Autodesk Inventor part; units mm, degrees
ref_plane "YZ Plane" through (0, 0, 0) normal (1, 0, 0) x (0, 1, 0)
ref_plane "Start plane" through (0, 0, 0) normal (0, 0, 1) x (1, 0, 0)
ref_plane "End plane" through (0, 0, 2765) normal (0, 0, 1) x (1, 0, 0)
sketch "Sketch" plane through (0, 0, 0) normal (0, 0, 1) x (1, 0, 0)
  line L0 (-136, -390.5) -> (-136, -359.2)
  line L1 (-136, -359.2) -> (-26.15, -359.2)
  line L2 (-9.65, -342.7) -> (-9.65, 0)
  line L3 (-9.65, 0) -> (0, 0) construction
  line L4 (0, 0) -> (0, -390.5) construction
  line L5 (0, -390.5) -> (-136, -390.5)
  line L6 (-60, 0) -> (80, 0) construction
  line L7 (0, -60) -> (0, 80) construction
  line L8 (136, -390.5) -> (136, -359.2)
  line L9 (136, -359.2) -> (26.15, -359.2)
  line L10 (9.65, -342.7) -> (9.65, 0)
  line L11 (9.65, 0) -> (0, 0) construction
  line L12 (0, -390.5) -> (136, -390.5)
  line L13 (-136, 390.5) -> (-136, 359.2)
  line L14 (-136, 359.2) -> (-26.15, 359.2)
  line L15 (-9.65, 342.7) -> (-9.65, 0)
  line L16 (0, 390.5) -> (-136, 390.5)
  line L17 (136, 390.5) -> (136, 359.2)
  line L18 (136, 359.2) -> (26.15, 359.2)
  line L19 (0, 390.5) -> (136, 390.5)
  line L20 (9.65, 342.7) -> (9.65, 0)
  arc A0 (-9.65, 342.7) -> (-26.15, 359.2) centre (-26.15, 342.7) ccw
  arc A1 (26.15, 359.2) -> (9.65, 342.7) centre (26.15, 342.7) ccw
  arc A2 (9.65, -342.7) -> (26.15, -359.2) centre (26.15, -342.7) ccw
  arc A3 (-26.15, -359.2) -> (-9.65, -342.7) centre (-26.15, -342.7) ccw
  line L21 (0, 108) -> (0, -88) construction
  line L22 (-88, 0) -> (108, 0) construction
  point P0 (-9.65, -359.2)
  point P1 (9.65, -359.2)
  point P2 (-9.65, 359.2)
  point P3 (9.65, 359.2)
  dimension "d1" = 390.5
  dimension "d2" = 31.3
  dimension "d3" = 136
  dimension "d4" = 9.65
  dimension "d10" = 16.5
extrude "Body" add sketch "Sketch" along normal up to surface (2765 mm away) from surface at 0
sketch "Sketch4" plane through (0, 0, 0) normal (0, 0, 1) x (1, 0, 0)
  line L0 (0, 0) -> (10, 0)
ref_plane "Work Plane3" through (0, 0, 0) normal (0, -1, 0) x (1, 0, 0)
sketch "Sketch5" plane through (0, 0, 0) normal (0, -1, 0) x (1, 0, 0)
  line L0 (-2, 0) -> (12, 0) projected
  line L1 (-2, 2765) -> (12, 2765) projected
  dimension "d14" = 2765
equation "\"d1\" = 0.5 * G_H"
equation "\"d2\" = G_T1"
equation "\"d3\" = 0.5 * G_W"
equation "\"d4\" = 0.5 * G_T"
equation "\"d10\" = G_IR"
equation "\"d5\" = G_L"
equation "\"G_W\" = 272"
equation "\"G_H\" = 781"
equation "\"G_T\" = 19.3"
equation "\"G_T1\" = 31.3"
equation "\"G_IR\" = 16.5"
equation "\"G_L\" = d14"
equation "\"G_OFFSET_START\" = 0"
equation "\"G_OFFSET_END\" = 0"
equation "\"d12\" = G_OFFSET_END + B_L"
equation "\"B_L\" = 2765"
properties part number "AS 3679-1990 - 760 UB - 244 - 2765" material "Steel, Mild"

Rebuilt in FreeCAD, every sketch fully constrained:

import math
import FreeCAD as App
import Part
import Sketcher

V = App.Vector

doc = App.newDocument("Part")
body = doc.addObject("PartDesign::Body", "Body")

sketch1 = body.newObject("Sketcher::SketchObject", "Sketch")
sketch1.AttachmentSupport = (doc.getObject("XY_Plane"), [""])
sketch1.MapMode = "FlatFace"
sketch1.addGeometry([
    Part.LineSegment(V(-136, -359, 0), V(-136, -390, 0)),
    Part.LineSegment(V(-136, -390, 0), V(136, -390, 0)),
    Part.LineSegment(V(136, -390, 0), V(136, -359, 0)),
    Part.LineSegment(V(136, -359, 0), V(26, -359, 0)),
    Part.ArcOfCircle(Part.Circle(V(26, -343, 0), V(0, 0, 1), 16), math.radians(180), math.radians(270)),
    Part.LineSegment(V(10, -343, 0), V(10, 343, 0)),
    Part.ArcOfCircle(Part.Circle(V(26, 343, 0), V(0, 0, 1), 16), math.radians(90), math.radians(180)),
    Part.LineSegment(V(26, 359, 0), V(136, 359, 0)),
    Part.LineSegment(V(136, 359, 0), V(136, 390, 0)),
    Part.LineSegment(V(136, 390, 0), V(-136, 390, 0)),
    Part.LineSegment(V(-136, 390, 0), V(-136, 359, 0)),
    Part.LineSegment(V(-136, 359, 0), V(-26, 359, 0)),
    Part.ArcOfCircle(Part.Circle(V(-26, 343, 0), V(0, 0, 1), 16), math.radians(0), math.radians(90)),
    Part.LineSegment(V(-10, 343, 0), V(-10, -343, 0)),
    Part.ArcOfCircle(Part.Circle(V(-26, -343, 0), V(0, 0, 1), 16), math.radians(-90), math.radians(0)),
    Part.LineSegment(V(-26, -359, 0), V(-136, -359, 0)),
], False)
sketch1.addConstraint([
    Sketcher.Constraint("Coincident", 0, 2, 1, 1),
    Sketcher.Constraint("Coincident", 1, 2, 2, 1),
    Sketcher.Constraint("Coincident", 2, 2, 3, 1),
    Sketcher.Constraint("Tangent", 3, 2, 4, 2),
    Sketcher.Constraint("Tangent", 4, 1, 5, 1),
    Sketcher.Constraint("Tangent", 5, 2, 6, 2),
    Sketcher.Constraint("Tangent", 6, 1, 7, 1),
    Sketcher.Constraint("Coincident", 7, 2, 8, 1),
    Sketcher.Constraint("Coincident", 8, 2, 9, 1),
    Sketcher.Constraint("Coincident", 9, 2, 10, 1),
    Sketcher.Constraint("Coincident", 10, 2, 11, 1),
    Sketcher.Constraint("Tangent", 11, 2, 12, 2),
    Sketcher.Constraint("Tangent", 12, 1, 13, 1),
    Sketcher.Constraint("Tangent", 13, 2, 14, 2),
    Sketcher.Constraint("Tangent", 14, 1, 15, 1),
    Sketcher.Constraint("Coincident", 15, 2, 0, 1),
    Sketcher.Constraint("Vertical", 0),
    Sketcher.Constraint("Horizontal", 1),
    Sketcher.Constraint("Vertical", 2),
    Sketcher.Constraint("Horizontal", 3),
    Sketcher.Constraint("Vertical", 5),
    Sketcher.Constraint("Horizontal", 7),
    Sketcher.Constraint("Vertical", 8),
    Sketcher.Constraint("Horizontal", 9),
    Sketcher.Constraint("Vertical", 10),
    Sketcher.Constraint("Horizontal", 11),
    Sketcher.Constraint("Vertical", 13),
    Sketcher.Constraint("Horizontal", 15),
    Sketcher.Constraint("Equal", 4, 6),
    Sketcher.Constraint("Equal", 6, 12),
    Sketcher.Constraint("Equal", 12, 14),
    Sketcher.Constraint("Symmetric", 4, 3, 12, 3, -1, 1),
    Sketcher.Constraint("Symmetric", 0, 2, 8, 2, -1, 1),
    Sketcher.Constraint("Symmetric", 7, 2, 10, 2, -2),
    Sketcher.Constraint("Symmetric", 2, 2, 15, 2, -2),
    Sketcher.Constraint("Radius", 4, 16.5),
    Sketcher.Constraint("DistanceY", 0, 2, 0, 1, 31.3),
    Sketcher.Constraint("DistanceX", 0, 2, -1, 1, 136.0),
    Sketcher.Constraint("DistanceY", 0, 2, -1, 1, 390.5),
    Sketcher.Constraint("DistanceX", -1, 1, 4, 1, 9.65),
])
pad1 = body.newObject("PartDesign::Pad", "Pad")
pad1.Profile = sketch1
pad1.Length = 2765

doc.recompute()
